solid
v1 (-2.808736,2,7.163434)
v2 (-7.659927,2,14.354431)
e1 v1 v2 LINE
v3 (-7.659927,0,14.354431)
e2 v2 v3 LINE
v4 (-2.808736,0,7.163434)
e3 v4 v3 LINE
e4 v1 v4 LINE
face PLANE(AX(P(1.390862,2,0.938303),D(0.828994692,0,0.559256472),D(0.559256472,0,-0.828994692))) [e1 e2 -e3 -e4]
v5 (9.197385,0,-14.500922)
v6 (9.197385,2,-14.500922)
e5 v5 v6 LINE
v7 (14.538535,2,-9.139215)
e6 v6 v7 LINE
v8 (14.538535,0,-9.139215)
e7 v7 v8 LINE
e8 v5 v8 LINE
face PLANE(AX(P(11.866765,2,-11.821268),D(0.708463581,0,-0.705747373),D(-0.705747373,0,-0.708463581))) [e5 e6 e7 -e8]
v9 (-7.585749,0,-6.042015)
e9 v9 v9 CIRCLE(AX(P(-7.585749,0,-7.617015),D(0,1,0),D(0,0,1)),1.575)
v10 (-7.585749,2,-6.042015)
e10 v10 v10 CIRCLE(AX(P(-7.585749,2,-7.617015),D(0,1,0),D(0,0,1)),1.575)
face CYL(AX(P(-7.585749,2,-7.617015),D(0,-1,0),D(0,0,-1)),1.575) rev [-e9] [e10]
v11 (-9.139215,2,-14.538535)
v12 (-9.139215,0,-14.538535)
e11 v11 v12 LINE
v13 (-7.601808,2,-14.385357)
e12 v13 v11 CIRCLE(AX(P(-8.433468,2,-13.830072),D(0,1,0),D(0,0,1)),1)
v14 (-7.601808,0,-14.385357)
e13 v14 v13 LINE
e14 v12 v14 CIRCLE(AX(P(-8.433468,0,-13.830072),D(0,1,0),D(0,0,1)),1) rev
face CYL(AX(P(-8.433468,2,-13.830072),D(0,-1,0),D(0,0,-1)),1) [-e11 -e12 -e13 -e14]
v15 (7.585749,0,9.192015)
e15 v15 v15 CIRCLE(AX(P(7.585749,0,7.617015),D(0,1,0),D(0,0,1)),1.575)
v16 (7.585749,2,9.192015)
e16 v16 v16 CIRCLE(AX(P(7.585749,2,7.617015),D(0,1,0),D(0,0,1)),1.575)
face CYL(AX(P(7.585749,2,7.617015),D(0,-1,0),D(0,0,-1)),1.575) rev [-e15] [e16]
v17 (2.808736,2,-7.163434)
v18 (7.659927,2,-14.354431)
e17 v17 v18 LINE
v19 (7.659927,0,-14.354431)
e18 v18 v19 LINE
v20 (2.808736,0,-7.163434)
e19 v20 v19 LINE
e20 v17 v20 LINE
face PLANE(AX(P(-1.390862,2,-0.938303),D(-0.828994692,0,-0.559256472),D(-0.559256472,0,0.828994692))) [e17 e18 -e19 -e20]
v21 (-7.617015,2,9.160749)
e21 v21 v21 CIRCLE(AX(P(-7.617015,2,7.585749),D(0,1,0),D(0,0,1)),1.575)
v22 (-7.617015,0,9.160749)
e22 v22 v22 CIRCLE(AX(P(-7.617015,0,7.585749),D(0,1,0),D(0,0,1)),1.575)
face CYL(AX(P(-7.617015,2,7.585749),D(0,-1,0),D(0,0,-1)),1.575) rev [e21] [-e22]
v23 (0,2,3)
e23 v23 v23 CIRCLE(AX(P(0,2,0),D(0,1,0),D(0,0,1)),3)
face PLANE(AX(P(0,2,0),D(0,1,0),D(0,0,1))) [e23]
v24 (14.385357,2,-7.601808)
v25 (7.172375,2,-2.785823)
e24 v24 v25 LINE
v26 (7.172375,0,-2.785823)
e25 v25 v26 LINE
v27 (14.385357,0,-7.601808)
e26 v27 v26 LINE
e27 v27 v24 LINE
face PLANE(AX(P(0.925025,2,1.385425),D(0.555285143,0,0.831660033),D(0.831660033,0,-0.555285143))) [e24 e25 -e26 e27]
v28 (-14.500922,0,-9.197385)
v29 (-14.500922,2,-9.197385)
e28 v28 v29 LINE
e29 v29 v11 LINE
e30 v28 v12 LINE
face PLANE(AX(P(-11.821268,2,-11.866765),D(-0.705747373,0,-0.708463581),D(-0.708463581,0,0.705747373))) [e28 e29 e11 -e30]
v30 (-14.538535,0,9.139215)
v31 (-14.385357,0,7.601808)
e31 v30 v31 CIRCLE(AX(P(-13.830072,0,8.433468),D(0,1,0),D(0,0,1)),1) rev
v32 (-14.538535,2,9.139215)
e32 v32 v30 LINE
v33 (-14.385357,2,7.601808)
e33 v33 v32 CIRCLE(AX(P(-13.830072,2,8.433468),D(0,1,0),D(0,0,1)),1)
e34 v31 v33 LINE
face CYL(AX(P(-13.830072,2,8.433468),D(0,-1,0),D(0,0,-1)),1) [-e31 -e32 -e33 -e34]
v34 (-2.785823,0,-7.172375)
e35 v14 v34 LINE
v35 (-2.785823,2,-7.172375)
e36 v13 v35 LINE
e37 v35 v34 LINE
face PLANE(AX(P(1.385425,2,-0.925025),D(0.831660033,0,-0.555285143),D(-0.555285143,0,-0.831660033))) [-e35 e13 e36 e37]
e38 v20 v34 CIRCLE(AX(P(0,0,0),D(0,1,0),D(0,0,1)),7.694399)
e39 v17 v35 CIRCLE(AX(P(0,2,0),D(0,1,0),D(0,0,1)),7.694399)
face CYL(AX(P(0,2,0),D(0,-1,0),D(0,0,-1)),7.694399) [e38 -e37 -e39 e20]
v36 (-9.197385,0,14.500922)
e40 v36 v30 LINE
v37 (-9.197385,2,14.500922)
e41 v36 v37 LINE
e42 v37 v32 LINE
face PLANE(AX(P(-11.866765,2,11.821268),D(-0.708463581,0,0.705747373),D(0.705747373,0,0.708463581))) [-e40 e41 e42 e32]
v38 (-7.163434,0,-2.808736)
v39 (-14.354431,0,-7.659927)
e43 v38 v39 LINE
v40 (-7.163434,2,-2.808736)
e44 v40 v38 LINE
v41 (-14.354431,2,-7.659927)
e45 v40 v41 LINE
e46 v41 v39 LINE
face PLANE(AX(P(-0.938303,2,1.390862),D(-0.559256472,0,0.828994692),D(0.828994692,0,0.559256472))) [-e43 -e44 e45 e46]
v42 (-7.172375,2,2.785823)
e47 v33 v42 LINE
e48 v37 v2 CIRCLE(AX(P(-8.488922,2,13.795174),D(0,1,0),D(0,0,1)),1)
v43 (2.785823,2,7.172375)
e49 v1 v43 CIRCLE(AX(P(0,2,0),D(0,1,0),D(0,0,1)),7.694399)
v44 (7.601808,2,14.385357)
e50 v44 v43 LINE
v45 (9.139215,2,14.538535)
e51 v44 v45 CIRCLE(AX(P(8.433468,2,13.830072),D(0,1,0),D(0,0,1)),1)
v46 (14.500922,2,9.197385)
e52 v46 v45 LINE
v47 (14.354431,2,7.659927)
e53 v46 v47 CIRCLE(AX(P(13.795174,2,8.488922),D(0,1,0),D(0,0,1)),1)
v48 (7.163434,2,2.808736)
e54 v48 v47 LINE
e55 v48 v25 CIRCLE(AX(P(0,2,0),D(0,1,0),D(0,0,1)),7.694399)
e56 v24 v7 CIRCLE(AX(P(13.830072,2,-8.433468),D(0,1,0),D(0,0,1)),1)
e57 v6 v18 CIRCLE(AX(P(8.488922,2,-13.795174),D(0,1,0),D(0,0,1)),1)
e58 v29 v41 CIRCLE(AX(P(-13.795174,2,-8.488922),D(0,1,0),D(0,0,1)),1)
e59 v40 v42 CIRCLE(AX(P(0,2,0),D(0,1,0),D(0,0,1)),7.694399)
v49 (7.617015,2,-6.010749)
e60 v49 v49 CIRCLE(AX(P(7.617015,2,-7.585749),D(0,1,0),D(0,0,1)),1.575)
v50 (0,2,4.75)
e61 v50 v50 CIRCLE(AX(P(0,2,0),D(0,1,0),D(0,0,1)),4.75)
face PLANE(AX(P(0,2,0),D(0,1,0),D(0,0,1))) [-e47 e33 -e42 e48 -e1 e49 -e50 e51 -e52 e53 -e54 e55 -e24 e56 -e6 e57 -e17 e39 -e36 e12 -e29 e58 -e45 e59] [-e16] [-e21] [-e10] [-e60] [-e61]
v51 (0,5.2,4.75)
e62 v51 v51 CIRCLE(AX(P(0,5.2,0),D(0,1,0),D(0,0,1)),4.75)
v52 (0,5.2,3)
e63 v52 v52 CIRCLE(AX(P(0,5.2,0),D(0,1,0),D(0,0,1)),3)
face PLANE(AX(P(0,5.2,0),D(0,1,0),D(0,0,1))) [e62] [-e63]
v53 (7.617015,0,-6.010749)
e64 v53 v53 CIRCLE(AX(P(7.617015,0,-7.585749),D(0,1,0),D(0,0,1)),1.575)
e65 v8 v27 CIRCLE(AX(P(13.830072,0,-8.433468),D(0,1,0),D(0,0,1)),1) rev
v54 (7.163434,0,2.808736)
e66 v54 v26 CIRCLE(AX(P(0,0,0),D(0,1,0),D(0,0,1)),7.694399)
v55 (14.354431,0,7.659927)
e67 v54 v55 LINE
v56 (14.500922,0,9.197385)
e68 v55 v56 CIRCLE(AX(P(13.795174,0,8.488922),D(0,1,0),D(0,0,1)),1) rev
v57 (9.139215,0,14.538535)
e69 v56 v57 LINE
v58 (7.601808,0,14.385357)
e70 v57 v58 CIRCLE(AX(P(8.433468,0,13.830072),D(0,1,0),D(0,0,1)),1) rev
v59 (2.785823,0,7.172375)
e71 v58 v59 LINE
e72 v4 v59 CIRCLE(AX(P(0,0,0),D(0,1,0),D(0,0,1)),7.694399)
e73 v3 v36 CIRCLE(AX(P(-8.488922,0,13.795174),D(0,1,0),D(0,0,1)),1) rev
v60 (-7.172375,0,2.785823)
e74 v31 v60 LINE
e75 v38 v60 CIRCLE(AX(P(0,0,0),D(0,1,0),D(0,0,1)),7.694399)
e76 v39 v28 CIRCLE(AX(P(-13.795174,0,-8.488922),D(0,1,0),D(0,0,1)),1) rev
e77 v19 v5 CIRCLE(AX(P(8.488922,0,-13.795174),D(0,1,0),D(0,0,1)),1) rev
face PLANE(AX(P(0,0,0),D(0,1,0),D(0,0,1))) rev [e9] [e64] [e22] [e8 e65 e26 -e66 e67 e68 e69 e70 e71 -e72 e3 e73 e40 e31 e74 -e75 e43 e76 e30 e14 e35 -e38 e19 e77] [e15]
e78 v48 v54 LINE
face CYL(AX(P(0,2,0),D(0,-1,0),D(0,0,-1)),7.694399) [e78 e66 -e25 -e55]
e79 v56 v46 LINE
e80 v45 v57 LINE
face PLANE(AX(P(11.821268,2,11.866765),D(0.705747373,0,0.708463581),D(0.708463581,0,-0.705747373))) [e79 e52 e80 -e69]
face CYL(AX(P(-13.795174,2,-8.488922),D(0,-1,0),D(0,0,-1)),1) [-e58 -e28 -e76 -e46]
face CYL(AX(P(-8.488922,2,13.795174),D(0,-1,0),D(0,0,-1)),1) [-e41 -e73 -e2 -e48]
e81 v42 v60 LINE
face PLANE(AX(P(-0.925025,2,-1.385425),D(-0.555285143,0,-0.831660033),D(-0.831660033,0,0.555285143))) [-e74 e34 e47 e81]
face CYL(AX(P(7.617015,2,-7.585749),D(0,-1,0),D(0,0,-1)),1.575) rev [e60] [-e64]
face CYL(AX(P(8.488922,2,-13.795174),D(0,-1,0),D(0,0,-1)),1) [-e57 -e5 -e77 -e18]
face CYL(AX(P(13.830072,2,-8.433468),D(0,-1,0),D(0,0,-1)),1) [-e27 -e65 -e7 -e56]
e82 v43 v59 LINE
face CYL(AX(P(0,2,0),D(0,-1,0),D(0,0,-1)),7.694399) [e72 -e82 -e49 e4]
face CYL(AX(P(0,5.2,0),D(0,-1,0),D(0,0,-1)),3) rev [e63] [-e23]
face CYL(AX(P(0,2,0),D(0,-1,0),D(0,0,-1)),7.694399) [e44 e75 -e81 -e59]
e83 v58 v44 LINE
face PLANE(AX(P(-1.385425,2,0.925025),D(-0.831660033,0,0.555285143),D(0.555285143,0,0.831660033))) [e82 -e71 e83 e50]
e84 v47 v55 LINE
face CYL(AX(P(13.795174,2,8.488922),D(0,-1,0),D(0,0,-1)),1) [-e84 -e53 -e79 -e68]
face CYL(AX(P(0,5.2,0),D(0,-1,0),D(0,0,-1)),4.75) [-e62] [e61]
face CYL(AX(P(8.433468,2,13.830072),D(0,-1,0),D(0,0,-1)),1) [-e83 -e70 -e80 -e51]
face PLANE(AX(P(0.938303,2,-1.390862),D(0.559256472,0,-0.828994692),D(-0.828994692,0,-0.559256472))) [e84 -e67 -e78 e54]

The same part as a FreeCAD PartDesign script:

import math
import FreeCAD as App
import Part
import Sketcher
from FreeCAD import Vector
Q = App.Units.Quantity


def edges_at(feature, points):
    """Names of the edges that pass closest to the given points."""
    edges = feature.Shape.Edges
    near = lambda p: min(range(len(edges)), key=lambda i: edges[i].distToShape(Part.Vertex(*p))[0])
    return sorted({f"Edge{near(p) + 1}" for p in points})

doc = App.newDocument("Part")
body = doc.addObject("PartDesign::Body", "Body")

# Sketch on XZ plane
sketch1 = body.newObject("Sketcher::SketchObject", "Sketch")
sketch1.AttachmentSupport = (doc.getObject("XZ_Plane"), [""])
sketch1.MapMode = "FlatFace"
sketch1.addGeometry(Part.Circle(Vector(0, 0, 0), Vector(0, 0, 1), 3), False)
sketch1.addConstraint([
    Sketcher.Constraint("Coincident", 0, 3, -1, 1),
    Sketcher.Constraint("Diameter", 0, Q("6 mm")),
])
pad1 = body.newObject("PartDesign::Pad", "Pad")
pad1.Profile = sketch1
pad1.Length = 2
pad1.Reversed = True
body2 = doc.addObject("PartDesign::Body", "Body001")

# Sketch on XZ plane
sketch2 = body2.newObject("Sketcher::SketchObject", "Sketch001")
sketch2.AttachmentSupport = (doc.getObject("XZ_Plane001"), [""])
sketch2.MapMode = "FlatFace"
sketch2.addGeometry([
    Part.LineSegment(Vector(-2.785823, -7.172375, 0), Vector(-8.277337, -15.397109, 0)),  # 0
    Part.LineSegment(Vector(-8.277337, -15.397109, 0), Vector(-15.361973, -8.339635, 0)),  # 1
    Part.LineSegment(Vector(-15.361973, -8.339635, 0), Vector(-7.163434, -2.808736, 0)),  # 2
    Part.ArcOfCircle(Part.Circle(Vector(0, 0, 0), Vector(0, 0, 1), 7.694399), math.radians(158.773324), math.radians(201.409824)),  # 3
    Part.LineSegment(Vector(-7.172375, 2.785823, 0), Vector(-15.397109, 8.277337, 0)),  # 4
    Part.LineSegment(Vector(-15.397109, 8.277337, 0), Vector(-8.339635, 15.361973, 0)),  # 5
    Part.LineSegment(Vector(-8.339635, 15.361973, 0), Vector(-2.808736, 7.163434, 0)),  # 6
    Part.ArcOfCircle(Part.Circle(Vector(0, 0, 0), Vector(0, 0, 1), 7.694399), math.radians(68.773324), math.radians(111.409824)),  # 7
    Part.LineSegment(Vector(2.785823, 7.172375, 0), Vector(8.277337, 15.397109, 0)),  # 8
    Part.LineSegment(Vector(8.277337, 15.397109, 0), Vector(15.361973, 8.339635, 0)),  # 9
    Part.LineSegment(Vector(15.361973, 8.339635, 0), Vector(7.163434, 2.808736, 0)),  # 10
    Part.ArcOfCircle(Part.Circle(Vector(0, 0, 0), Vector(0, 0, 1), 7.694399), math.radians(-21.226676), math.radians(21.409824)),  # 11
    Part.LineSegment(Vector(7.172375, -2.785823, 0), Vector(15.397109, -8.277337, 0)),  # 12
    Part.LineSegment(Vector(15.397109, -8.277337, 0), Vector(8.339635, -15.361973, 0)),  # 13
    Part.LineSegment(Vector(8.339635, -15.361973, 0), Vector(2.808736, -7.163434, 0)),  # 14
    Part.ArcOfCircle(Part.Circle(Vector(0, 0, 0), Vector(0, 0, 1), 7.694399), math.radians(-111.226676), math.radians(-68.590176)),  # 15
    Part.Circle(Vector(-7.617015, 7.585749, 0), Vector(0, 0, 1), 1.575),  # 16
    Part.Circle(Vector(7.585749, 7.617015, 0), Vector(0, 0, 1), 1.575),  # 17
    Part.Circle(Vector(-7.585749, -7.617015, 0), Vector(0, 0, 1), 1.575),  # 18
    Part.Circle(Vector(0, 0, 0), Vector(0, 0, 1), 4.75),  # 19
    Part.Circle(Vector(7.617015, -7.585749, 0), Vector(0, 0, 1), 1.575),  # 20
], False)
sketch2.addConstraint([
    Sketcher.Constraint("Coincident", 0, 2, 1, 1),
    Sketcher.Constraint("Coincident", 1, 2, 2, 1),
    Sketcher.Constraint("Coincident", 2, 2, 3, 2),
    Sketcher.Constraint("Coincident", 3, 1, 4, 1),
    Sketcher.Constraint("Coincident", 4, 2, 5, 1),
    Sketcher.Constraint("Coincident", 5, 2, 6, 1),
    Sketcher.Constraint("Coincident", 6, 2, 7, 2),
    Sketcher.Constraint("Coincident", 7, 1, 8, 1),
    Sketcher.Constraint("Coincident", 8, 2, 9, 1),
    Sketcher.Constraint("Coincident", 9, 2, 10, 1),
    Sketcher.Constraint("Coincident", 10, 2, 11, 2),
    Sketcher.Constraint("Coincident", 11, 1, 12, 1),
    Sketcher.Constraint("Coincident", 12, 2, 13, 1),
    Sketcher.Constraint("Coincident", 13, 2, 14, 1),
    Sketcher.Constraint("Coincident", 14, 2, 15, 2),
    Sketcher.Constraint("Coincident", 15, 1, 0, 1),
    Sketcher.Constraint("Coincident", 3, 3, -1, 1),
    Sketcher.Constraint("Coincident", 7, 3, -1, 1),
    Sketcher.Constraint("Coincident", 11, 3, -1, 1),
    Sketcher.Constraint("Coincident", 15, 3, -1, 1),
    Sketcher.Constraint("Coincident", 19, 3, -1, 1),
    Sketcher.Constraint("Equal", 3, 7),
    Sketcher.Constraint("Equal", 7, 11),
    Sketcher.Constraint("Equal", 11, 15),
    Sketcher.Constraint("Equal", 16, 17),
    Sketcher.Constraint("Equal", 17, 18),
    Sketcher.Constraint("Equal", 18, 20),
    Sketcher.Constraint("Symmetric", 17, 3, 18, 3, -1, 1),
    Sketcher.Constraint("Symmetric", 16, 3, 20, 3, -1, 1),
    Sketcher.Constraint("Symmetric", 0, 2, 8, 2, -1, 1),
    Sketcher.Constraint("Symmetric", 1, 2, 9, 2, -1, 1),
    Sketcher.Constraint("Symmetric", 4, 2, 12, 2, -1, 1),
    Sketcher.Constraint("Symmetric", 5, 2, 13, 2, -1, 1),
    Sketcher.Constraint("Perpendicular", 0, 4),
    Sketcher.Constraint("Perpendicular", 1, 5),
    Sketcher.Constraint("Perpendicular", 2, 6),
    Sketcher.Constraint("Perpendicular", 4, 8),
    Sketcher.Constraint("Perpendicular", 6, 10),
    Sketcher.Constraint("Perpendicular", 8, 12),
    Sketcher.Constraint("Perpendicular", 10, 14),
    Sketcher.Constraint("Equal", 0, 4),
    Sketcher.Constraint("Equal", 1, 5),
    Sketcher.Constraint("Equal", 2, 6),
    Sketcher.Constraint("Diameter", 19, Q("9.5 mm")),
    Sketcher.Constraint("Diameter", 16, Q("3.15 mm")),
    Sketcher.Constraint("Distance", 1, Q("10 mm")),
    Sketcher.Constraint("Radius", 3, Q("7.694399 mm")),
    Sketcher.Constraint("Distance", 0, Q("9.889538 mm")),
    Sketcher.Constraint("DistanceY", -1, 1, 16, 3, Q("7.585749 mm")),
    Sketcher.Constraint("DistanceX", -1, 1, 17, 3, Q("7.585749 mm")),
    Sketcher.Constraint("DistanceY", 0, 2, -1, 1, Q("15.397109 mm")),
    Sketcher.Constraint("DistanceX", 0, 2, 18, 3, Q("0.691588 mm")),
    Sketcher.Constraint("DistanceY", 1, 2, 18, 3, Q("0.72262 mm")),
    Sketcher.Constraint("DistanceY", 18, 3, 2, 2, Q("4.808279 mm")),
    Sketcher.Constraint("DistanceX", 16, 3, 3, 1, Q("0.44464 mm")),
    Sketcher.Constraint("DistanceX", 3, 1, 2, 2, Q("0.008942 mm")),
])
pad2 = body2.newObject("PartDesign::Pad", "Pad001")
pad2.Profile = sketch2
pad2.Length = 2
pad2.Reversed = True
body.AllowCompound = True
doc.recompute()

boolean = body.newObject("PartDesign::Boolean", "Boolean")
boolean.Type = "Fuse"
boolean.addObjects([body2])

# Sketch on XZ plane
sketch3 = body.newObject("Sketcher::SketchObject", "Sketch002")
sketch3.AttachmentSupport = (doc.getObject("XZ_Plane"), [""])
sketch3.MapMode = "FlatFace"
sketch3.addGeometry([
    Part.ArcOfCircle(Part.Circle(Vector(0, 0, 0), Vector(0, 0, 1), 4.75), math.radians(-166.679668), math.radians(-103.199829)),  # 0
    Part.ArcOfCircle(Part.Circle(Vector(0, 0, 0), Vector(0, 0, 1), 4.75), math.radians(166.800171), math.radians(193.320332)),  # 1
    Part.ArcOfCircle(Part.Circle(Vector(0, 0, 0), Vector(0, 0, 1), 4.75), math.radians(103.320332), math.radians(166.800171)),  # 2
    Part.ArcOfCircle(Part.Circle(Vector(0, 0, 0), Vector(0, 0, 1), 4.75), math.radians(76.800171), math.radians(103.320332)),  # 3
    Part.ArcOfCircle(Part.Circle(Vector(0, 0, 0), Vector(0, 0, 1), 4.75), math.radians(13.320332), math.radians(76.800171)),  # 4
    Part.ArcOfCircle(Part.Circle(Vector(0, 0, 0), Vector(0, 0, 1), 4.75), math.radians(0), math.radians(13.320332)),  # 5
    Part.ArcOfCircle(Part.Circle(Vector(0, 0, 0), Vector(0, 0, 1), 4.75), math.radians(-13.199829), math.radians(0)),  # 6
    Part.ArcOfCircle(Part.Circle(Vector(0, 0, 0), Vector(0, 0, 1), 4.75), math.radians(-44.882165), math.radians(-13.199829)),  # 7
    Part.ArcOfCircle(Part.Circle(Vector(0, 0, 0), Vector(0, 0, 1), 4.75), math.radians(-76.679668), math.radians(-44.882165)),  # 8
    Part.ArcOfCircle(Part.Circle(Vector(0, 0, 0), Vector(0, 0, 1), 4.75), math.radians(-103.199829), math.radians(-76.679668)),  # 9
    Part.ArcOfCircle(Part.Circle(Vector(0, 0, 0), Vector(0, 0, 1), 3), math.radians(90), math.radians(180)),  # 10
    Part.ArcOfCircle(Part.Circle(Vector(0, 0, 0), Vector(0, 0, 1), 3), math.radians(180), math.radians(270)),  # 11
    Part.ArcOfCircle(Part.Circle(Vector(0, 0, 0), Vector(0, 0, 1), 3), math.radians(-90), math.radians(0)),  # 12
    Part.ArcOfCircle(Part.Circle(Vector(0, 0, 0), Vector(0, 0, 1), 3), math.radians(0), math.radians(90)),  # 13
], False)
sketch3.addConstraint([
    Sketcher.Constraint("Tangent", 0, 1, 1, 2),
    Sketcher.Constraint("Tangent", 1, 1, 2, 2),
    Sketcher.Constraint("Tangent", 2, 1, 3, 2),
    Sketcher.Constraint("Tangent", 3, 1, 4, 2),
    Sketcher.Constraint("Tangent", 4, 1, 5, 2),
    Sketcher.Constraint("Tangent", 5, 1, 6, 2),
    Sketcher.Constraint("Tangent", 6, 1, 7, 2),
    Sketcher.Constraint("Tangent", 7, 1, 8, 2),
    Sketcher.Constraint("Tangent", 8, 1, 9, 2),
    Sketcher.Constraint("Tangent", 9, 1, 0, 2),
    Sketcher.Constraint("Tangent", 10, 2, 11, 1),
    Sketcher.Constraint("Tangent", 11, 2, 12, 1),
    Sketcher.Constraint("Tangent", 12, 2, 13, 1),
    Sketcher.Constraint("Tangent", 13, 2, 10, 1),
    Sketcher.Constraint("Coincident", 0, 3, -1, 1),
    Sketcher.Constraint("Coincident", 2, 3, -1, 1),
    Sketcher.Constraint("Coincident", 4, 3, -1, 1),
    Sketcher.Constraint("Coincident", 6, 3, -1, 1),
    Sketcher.Constraint("Coincident", 10, 3, -1, 1),
    Sketcher.Constraint("Equal", 6, 7),
    Sketcher.Constraint("Equal", 10, 11),
    Sketcher.Constraint("PointOnObject", 5, 1, -1),
    Sketcher.Constraint("PointOnObject", 10, 2, -1),
    Sketcher.Constraint("PointOnObject", 11, 2, -2),
    Sketcher.Constraint("PointOnObject", 12, 2, -1),
    Sketcher.Constraint("PointOnObject", 13, 2, -2),
    Sketcher.Constraint("Radius", 10, Q("3 mm")),
    Sketcher.Constraint("Radius", 0, Q("4.75 mm")),
    Sketcher.Constraint("DistanceX", 0, 1, -1, 1, Q("4.622212 mm")),
    Sketcher.Constraint("DistanceY", -1, 1, 2, 1, Q("4.622212 mm")),
    Sketcher.Constraint("DistanceX", -1, 1, 4, 1, Q("4.622212 mm")),
    Sketcher.Constraint("DistanceY", 8, 1, -1, 1, Q("4.622212 mm")),
    Sketcher.Constraint("DistanceX", 1, 1, 0, 1, Q("0.002291 mm")),
    Sketcher.Constraint("DistanceX", 2, 1, 3, 1, Q("2.179029 mm")),
    Sketcher.Constraint("DistanceX", 4, 1, 6, 1, Q("0.002291 mm")),
    Sketcher.Constraint("DistanceY", 7, 1, 6, 1, Q("2.26719 mm")),
    Sketcher.Constraint("DistanceX", 9, 1, 8, 1, Q("2.179029 mm")),
])
pad3 = body.newObject("PartDesign::Pad", "Pad002")
pad3.Profile = sketch3
pad3.Length = 5.2
pad3.Reversed = True
doc.recompute()

fillet = body.newObject("PartDesign::Fillet", "Fillet")
fillet.Base = (pad3, edges_at(pad3, [
    (-8.34, 1, 15.362),
    (-15.397, 1, 8.277),
    (-15.362, 1, -8.34),
    (-8.277, 1, -15.397),
    (8.34, 1, -15.362),
    (15.397, 1, -8.277),
    (15.362, 1, 8.34),
    (8.277, 1, 15.397),
]))
fillet.Radius = 1

doc.recompute()
